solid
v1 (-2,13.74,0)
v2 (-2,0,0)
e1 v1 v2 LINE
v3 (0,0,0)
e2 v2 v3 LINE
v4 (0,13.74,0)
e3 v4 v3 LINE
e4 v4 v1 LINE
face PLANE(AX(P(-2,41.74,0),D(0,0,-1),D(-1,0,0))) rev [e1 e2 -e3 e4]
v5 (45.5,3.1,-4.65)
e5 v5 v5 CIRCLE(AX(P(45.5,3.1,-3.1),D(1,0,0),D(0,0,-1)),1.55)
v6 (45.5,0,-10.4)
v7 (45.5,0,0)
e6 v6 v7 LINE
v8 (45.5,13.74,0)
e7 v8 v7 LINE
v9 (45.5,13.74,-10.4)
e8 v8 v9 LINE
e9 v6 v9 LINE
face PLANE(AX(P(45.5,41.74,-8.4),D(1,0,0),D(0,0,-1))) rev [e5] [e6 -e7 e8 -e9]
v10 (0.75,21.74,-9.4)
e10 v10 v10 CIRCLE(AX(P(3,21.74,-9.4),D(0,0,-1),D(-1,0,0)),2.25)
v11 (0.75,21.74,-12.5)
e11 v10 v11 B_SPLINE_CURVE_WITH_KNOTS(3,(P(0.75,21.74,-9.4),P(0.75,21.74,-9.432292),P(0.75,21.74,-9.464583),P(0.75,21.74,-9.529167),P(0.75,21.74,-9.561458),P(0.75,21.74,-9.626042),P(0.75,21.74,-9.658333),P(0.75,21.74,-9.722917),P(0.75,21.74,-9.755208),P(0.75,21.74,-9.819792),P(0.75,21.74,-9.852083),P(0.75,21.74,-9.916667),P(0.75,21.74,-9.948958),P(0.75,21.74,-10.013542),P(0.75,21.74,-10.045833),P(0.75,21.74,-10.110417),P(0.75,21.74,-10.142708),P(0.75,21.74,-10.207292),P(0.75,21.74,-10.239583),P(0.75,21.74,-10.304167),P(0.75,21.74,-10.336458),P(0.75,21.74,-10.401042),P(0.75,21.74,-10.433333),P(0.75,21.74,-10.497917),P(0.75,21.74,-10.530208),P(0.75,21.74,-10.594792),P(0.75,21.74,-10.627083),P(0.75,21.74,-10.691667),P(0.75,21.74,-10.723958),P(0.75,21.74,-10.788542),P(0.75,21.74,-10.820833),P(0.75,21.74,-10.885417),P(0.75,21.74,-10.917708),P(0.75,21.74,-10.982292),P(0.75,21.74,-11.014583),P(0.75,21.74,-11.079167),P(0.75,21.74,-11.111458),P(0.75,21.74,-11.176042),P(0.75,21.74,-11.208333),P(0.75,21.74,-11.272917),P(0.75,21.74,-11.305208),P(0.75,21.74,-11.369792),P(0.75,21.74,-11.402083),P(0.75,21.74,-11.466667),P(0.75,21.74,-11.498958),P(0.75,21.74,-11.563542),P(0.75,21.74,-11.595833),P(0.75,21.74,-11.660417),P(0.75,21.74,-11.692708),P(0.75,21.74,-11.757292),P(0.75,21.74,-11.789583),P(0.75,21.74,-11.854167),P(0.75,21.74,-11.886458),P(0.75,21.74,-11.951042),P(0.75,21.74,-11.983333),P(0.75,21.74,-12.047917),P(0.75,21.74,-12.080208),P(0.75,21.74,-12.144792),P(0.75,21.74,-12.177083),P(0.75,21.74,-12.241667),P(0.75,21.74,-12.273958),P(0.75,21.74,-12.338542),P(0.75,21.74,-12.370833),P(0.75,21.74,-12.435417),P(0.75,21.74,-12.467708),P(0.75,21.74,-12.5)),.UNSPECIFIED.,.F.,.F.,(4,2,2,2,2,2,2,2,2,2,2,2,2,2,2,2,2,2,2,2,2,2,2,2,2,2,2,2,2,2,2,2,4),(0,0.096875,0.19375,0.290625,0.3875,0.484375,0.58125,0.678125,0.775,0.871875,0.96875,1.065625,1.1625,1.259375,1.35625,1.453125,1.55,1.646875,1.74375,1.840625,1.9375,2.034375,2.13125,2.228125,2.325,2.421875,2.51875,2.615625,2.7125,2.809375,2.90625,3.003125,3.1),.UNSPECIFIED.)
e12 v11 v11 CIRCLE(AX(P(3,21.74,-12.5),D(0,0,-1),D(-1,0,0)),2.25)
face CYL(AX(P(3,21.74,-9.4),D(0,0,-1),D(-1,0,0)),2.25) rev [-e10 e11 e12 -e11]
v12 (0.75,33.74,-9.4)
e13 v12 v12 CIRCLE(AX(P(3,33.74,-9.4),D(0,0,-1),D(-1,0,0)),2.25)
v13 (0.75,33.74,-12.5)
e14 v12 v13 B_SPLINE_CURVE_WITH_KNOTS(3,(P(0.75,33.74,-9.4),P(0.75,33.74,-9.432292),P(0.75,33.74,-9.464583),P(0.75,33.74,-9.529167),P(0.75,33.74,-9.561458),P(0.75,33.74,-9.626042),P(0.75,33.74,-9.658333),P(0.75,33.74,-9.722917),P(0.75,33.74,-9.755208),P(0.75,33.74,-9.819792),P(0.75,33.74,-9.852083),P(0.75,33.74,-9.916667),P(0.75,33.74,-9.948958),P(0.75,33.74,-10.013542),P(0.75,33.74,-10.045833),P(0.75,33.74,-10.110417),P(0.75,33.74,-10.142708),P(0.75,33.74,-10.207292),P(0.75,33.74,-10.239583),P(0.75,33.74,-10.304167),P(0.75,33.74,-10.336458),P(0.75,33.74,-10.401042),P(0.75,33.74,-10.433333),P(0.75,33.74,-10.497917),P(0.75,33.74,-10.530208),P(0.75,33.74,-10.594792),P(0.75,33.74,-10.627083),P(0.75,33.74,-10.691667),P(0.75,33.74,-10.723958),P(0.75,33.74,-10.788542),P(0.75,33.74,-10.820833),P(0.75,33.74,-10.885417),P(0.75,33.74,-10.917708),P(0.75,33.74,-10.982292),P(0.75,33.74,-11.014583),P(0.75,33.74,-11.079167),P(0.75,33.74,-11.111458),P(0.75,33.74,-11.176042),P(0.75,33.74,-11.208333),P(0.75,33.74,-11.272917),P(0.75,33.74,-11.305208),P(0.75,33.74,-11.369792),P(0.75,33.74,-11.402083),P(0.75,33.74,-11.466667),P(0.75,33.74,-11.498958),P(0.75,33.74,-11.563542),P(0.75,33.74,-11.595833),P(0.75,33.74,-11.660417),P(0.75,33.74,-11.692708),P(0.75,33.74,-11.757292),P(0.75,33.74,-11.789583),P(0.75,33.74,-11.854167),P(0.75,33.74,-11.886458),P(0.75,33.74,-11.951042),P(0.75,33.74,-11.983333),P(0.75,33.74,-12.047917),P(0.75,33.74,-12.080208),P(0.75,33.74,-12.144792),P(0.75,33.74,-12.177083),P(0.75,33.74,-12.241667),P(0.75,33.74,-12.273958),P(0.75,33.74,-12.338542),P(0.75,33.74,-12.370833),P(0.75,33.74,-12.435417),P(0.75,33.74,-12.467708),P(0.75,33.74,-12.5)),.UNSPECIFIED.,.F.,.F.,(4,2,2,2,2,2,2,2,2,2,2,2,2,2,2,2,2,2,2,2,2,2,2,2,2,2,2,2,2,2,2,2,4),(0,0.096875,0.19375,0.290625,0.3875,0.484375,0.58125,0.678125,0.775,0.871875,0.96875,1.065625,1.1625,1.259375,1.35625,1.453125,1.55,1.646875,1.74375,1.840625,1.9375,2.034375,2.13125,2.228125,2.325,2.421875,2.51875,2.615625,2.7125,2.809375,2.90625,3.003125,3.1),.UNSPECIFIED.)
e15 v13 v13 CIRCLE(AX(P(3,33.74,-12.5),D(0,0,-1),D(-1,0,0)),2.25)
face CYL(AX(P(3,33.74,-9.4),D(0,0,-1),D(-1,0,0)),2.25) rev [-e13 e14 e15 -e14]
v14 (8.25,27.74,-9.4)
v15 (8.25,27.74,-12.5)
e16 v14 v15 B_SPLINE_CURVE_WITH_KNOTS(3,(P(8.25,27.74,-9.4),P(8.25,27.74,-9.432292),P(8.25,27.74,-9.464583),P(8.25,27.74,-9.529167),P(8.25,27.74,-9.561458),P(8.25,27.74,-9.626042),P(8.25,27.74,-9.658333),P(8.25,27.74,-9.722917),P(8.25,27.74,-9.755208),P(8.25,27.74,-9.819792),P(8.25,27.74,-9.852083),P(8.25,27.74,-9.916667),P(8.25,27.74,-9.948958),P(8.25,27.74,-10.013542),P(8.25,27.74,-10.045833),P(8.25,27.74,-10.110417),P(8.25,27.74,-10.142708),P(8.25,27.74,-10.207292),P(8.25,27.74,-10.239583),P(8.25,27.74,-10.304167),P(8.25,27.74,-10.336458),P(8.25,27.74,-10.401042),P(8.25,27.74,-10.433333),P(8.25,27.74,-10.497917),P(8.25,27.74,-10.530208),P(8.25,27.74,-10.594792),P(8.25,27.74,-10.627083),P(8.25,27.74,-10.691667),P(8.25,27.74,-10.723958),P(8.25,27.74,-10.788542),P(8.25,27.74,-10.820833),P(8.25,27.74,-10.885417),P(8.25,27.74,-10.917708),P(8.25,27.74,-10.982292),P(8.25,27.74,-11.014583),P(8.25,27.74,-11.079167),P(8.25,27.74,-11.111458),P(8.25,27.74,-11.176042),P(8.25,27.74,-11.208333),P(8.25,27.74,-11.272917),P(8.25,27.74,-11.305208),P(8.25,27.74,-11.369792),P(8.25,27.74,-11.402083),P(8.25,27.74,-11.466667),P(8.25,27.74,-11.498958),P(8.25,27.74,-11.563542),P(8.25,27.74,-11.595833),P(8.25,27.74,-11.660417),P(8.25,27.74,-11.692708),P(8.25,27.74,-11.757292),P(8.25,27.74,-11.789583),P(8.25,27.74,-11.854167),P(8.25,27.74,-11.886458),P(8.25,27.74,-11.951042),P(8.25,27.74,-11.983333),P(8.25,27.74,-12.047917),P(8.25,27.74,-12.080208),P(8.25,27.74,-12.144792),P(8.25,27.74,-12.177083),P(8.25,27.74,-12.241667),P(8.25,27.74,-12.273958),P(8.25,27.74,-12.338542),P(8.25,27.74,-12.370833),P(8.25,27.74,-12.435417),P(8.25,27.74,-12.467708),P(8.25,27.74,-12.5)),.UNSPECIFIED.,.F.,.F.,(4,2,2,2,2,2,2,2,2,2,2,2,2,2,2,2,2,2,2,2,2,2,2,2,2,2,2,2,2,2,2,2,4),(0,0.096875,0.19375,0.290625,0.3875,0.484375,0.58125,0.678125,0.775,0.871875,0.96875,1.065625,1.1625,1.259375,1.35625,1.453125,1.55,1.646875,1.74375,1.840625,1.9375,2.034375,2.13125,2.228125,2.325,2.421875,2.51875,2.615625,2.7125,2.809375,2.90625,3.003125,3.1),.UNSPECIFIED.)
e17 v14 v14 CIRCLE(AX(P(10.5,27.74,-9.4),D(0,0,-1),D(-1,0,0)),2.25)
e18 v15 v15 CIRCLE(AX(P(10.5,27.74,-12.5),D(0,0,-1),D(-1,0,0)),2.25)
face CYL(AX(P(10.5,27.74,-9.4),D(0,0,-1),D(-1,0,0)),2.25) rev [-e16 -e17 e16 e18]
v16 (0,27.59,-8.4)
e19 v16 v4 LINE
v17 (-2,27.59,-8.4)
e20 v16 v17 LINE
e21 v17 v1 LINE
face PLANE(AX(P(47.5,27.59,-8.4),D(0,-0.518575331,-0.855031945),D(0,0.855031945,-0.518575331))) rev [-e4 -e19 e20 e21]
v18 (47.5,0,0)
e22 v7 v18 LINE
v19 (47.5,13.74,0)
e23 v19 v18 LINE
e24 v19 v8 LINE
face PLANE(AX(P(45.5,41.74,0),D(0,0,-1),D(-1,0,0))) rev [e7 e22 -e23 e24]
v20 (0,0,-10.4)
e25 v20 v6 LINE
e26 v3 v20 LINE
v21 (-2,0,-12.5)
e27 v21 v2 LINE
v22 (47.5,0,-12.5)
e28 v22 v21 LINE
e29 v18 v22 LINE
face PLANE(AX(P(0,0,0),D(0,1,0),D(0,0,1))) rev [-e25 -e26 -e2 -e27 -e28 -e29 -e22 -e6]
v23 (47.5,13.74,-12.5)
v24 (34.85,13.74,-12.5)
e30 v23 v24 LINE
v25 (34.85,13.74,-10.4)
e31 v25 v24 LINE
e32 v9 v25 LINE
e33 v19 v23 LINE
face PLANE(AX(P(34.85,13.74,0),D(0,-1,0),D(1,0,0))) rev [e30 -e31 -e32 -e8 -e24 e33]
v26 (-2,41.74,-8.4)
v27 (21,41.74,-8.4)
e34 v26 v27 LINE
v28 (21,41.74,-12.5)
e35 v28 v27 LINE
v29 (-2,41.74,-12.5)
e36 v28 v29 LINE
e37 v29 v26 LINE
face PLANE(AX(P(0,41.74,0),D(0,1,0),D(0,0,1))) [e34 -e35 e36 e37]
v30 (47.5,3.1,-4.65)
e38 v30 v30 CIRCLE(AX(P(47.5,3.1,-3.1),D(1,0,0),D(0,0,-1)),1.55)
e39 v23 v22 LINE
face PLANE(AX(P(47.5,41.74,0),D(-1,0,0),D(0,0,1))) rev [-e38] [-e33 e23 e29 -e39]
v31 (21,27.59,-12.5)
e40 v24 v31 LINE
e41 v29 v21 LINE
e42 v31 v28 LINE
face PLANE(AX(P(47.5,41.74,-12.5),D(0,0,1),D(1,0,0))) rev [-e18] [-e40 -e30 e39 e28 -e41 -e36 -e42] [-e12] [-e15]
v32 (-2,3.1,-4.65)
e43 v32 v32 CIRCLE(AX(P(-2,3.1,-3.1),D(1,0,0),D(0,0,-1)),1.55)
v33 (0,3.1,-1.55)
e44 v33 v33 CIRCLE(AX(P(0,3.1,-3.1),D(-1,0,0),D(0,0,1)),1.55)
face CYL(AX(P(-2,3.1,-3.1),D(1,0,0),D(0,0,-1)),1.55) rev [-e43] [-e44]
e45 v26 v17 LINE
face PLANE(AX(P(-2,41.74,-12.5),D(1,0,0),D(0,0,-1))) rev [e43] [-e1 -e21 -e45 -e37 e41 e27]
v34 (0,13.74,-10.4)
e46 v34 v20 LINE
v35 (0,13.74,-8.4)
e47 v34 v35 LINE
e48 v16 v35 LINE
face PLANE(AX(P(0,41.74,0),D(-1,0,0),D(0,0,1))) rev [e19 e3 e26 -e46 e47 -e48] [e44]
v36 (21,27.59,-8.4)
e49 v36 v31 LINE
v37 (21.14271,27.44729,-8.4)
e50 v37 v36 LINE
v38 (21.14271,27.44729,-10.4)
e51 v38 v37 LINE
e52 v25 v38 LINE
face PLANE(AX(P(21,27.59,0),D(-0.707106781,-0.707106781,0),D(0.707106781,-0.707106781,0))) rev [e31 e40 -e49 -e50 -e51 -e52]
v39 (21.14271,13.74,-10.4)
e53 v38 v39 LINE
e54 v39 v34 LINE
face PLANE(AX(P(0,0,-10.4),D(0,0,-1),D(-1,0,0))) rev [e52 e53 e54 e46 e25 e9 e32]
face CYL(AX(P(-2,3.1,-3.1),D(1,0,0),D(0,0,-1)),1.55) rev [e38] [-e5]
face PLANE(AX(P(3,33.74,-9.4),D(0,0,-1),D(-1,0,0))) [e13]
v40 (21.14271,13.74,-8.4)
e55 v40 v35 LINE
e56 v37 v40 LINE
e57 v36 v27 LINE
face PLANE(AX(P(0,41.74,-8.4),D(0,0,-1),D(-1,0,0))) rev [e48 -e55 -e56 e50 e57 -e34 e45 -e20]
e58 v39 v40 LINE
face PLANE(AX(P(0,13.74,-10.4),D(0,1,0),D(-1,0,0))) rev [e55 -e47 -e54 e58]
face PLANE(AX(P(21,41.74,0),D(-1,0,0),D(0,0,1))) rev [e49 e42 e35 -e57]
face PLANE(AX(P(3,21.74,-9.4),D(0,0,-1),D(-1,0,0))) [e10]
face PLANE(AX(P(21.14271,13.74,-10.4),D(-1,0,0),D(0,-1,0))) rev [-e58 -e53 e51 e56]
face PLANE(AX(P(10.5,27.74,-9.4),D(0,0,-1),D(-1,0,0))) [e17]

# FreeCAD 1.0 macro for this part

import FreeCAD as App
import Part
import Sketcher

V = App.Vector
Q = App.Units.Quantity

doc = App.newDocument("Part")
body = doc.addObject("PartDesign::Body", "Body")

sketch1 = body.newObject("Sketcher::SketchObject", "Sketch")
sketch1.AttachmentSupport = (doc.getObject("XZ_Plane"), [""])
sketch1.MapMode = "FlatFace"
sketch1.addGeometry(Part.LineSegment(V(0, 0, 0), V(0, -8.4, 0)), False)
sketch1.addGeometry(Part.LineSegment(V(0, -8.4, 0), V(45.5, -8.4, 0)), False)
sketch1.addGeometry(Part.LineSegment(V(45.5, -8.4, 0), V(45.5, 0, 0)), False)
sketch1.addGeometry(Part.LineSegment(V(45.5, 0, 0), V(47.5, 0, 0)), False)
sketch1.addGeometry(Part.LineSegment(V(47.5, 0, 0), V(47.5, -12.5, 0)), False)
sketch1.addGeometry(Part.LineSegment(V(47.5, -12.5, 0), V(-2, -12.5, 0)), False)
sketch1.addGeometry(Part.LineSegment(V(-2, -12.5, 0), V(-2, 0, 0)), False)
sketch1.addGeometry(Part.LineSegment(V(-2, 0, 0), V(0, 0, 0)), False)
sketch1.addConstraint(Sketcher.Constraint("Coincident", 0, 2, 1, 1))
sketch1.addConstraint(Sketcher.Constraint("Coincident", 1, 2, 2, 1))
sketch1.addConstraint(Sketcher.Constraint("Coincident", 2, 2, 3, 1))
sketch1.addConstraint(Sketcher.Constraint("Coincident", 3, 2, 4, 1))
sketch1.addConstraint(Sketcher.Constraint("Coincident", 4, 2, 5, 1))
sketch1.addConstraint(Sketcher.Constraint("Coincident", 5, 2, 6, 1))
sketch1.addConstraint(Sketcher.Constraint("Coincident", 6, 2, 7, 1))
sketch1.addConstraint(Sketcher.Constraint("Coincident", 7, 2, 0, 1))
sketch1.addConstraint(Sketcher.Constraint("Vertical", 0))
sketch1.addConstraint(Sketcher.Constraint("Horizontal", 1))
sketch1.addConstraint(Sketcher.Constraint("Vertical", 2))
sketch1.addConstraint(Sketcher.Constraint("Horizontal", 3))
sketch1.addConstraint(Sketcher.Constraint("Vertical", 4))
sketch1.addConstraint(Sketcher.Constraint("Horizontal", 5))
sketch1.addConstraint(Sketcher.Constraint("Vertical", 6))
sketch1.addConstraint(Sketcher.Constraint("Horizontal", 7))
sketch1.addConstraint(Sketcher.Constraint("Coincident", 7, 2, -1, 1))
sketch1.addConstraint(Sketcher.Constraint("PointOnObject", 2, 2, -1))
sketch1.addConstraint(Sketcher.Constraint("Equal", 3, 7))
sketch1.addConstraint(Sketcher.Constraint("DistanceX", 3, 1, 3, 2, 2.0))
sketch1.addConstraint(Sketcher.Constraint("DistanceX", 1, 1, 1, 2, 45.5))
sketch1.addConstraint(Sketcher.Constraint("DistanceY", 0, 2, 0, 1, 8.4))
sketch1.addConstraint(Sketcher.Constraint("DistanceY", 4, 2, 4, 1, 12.5))
pad1 = body.newObject("PartDesign::Pad", "Pad")
pad1.Profile = sketch1
pad1.Length = 41.74
pad1.Reversed = True

sketch2 = body.newObject("Sketcher::SketchObject", "Sketch001")
sketch2.AttachmentSupport = (doc.getObject("YZ_Plane"), [""])
sketch2.MapMode = "FlatFace"
sketch2.AttachmentOffset = App.Placement(V(0, 0, 47.5), App.Rotation())
sketch2.addGeometry(Part.Circle(V(3.1, -3.1, 0), V(0, 0, 1), 1.6), False)
sketch2.addConstraint(Sketcher.Constraint("Diameter", 0, 3.1))
sketch2.addConstraint(Sketcher.Constraint("DistanceX", -1, 1, 0, 3, 3.1))
sketch2.addConstraint(Sketcher.Constraint("DistanceY", 0, 3, -1, 1, 3.1))
pocket1 = body.newObject("PartDesign::Pocket", "Pocket")
pocket1.Profile = sketch2
pocket1.Type = "ThroughAll"

sketch3 = body.newObject("Sketcher::SketchObject", "Sketch002")
sketch3.AttachmentSupport = (doc.getObject("YZ_Plane"), [""])
sketch3.MapMode = "FlatFace"
sketch3.AttachmentOffset = App.Placement(V(0, 0, -2), App.Rotation())
sketch3.addGeometry(Part.LineSegment(V(42, 0, 0), V(42, -8, 0)), False)
sketch3.addGeometry(Part.LineSegment(V(42, -8, 0), V(28, -8, 0)), False)
sketch3.addGeometry(Part.LineSegment(V(28, -8, 0), V(14, 0, 0)), False)
sketch3.addGeometry(Part.LineSegment(V(14, 0, 0), V(42, 0, 0)), False)
sketch3.addConstraint(Sketcher.Constraint("Coincident", 0, 2, 1, 1))
sketch3.addConstraint(Sketcher.Constraint("Coincident", 1, 2, 2, 1))
sketch3.addConstraint(Sketcher.Constraint("Coincident", 2, 2, 3, 1))
sketch3.addConstraint(Sketcher.Constraint("Coincident", 3, 2, 0, 1))
sketch3.addConstraint(Sketcher.Constraint("Vertical", 0))
sketch3.addConstraint(Sketcher.Constraint("Horizontal", 1))
sketch3.addConstraint(Sketcher.Constraint("Horizontal", 3))
sketch3.addConstraint(Sketcher.Constraint("PointOnObject", 2, 2, -1))
sketch3.addConstraint(Sketcher.Constraint("DistanceX", 3, 1, 3, 2, 28.0))
sketch3.addConstraint(Sketcher.Constraint("DistanceY", 0, 2, 0, 1, 8.4))
sketch3.addConstraint(Sketcher.Constraint("DistanceX", 1, 2, 1, 1, 14.15))
sketch3.addConstraint(Sketcher.Constraint("DistanceX", -1, 1, 0, 2, 41.74))
pocket2 = body.newObject("PartDesign::Pocket", "Pocket001")
pocket2.Profile = sketch3
pocket2.Type = "ThroughAll"
pocket2.Reversed = True

sketch4 = body.newObject("Sketcher::SketchObject", "Sketch003")
sketch4.AttachmentSupport = (doc.getObject("XY_Plane"), [""])
sketch4.MapMode = "FlatFace"
sketch4.AttachmentOffset = App.Placement(V(0, 0, -12.5), App.Rotation())
sketch4.addGeometry(Part.LineSegment(V(21, 28, 0), V(21, 42, 0)), False)
sketch4.addGeometry(Part.LineSegment(V(21, 42, 0), V(48, 42, 0)), False)
sketch4.addGeometry(Part.LineSegment(V(48, 42, 0), V(48, 14, 0)), False)
sketch4.addGeometry(Part.LineSegment(V(48, 14, 0), V(35, 14, 0)), False)
sketch4.addGeometry(Part.LineSegment(V(35, 14, 0), V(21, 28, 0)), False)
sketch4.addConstraint(Sketcher.Constraint("Coincident", 0, 2, 1, 1))
sketch4.addConstraint(Sketcher.Constraint("Coincident", 1, 2, 2, 1))
sketch4.addConstraint(Sketcher.Constraint("Coincident", 2, 2, 3, 1))
sketch4.addConstraint(Sketcher.Constraint("Coincident", 3, 2, 4, 1))
sketch4.addConstraint(Sketcher.Constraint("Coincident", 4, 2, 0, 1))
sketch4.addConstraint(Sketcher.Constraint("Vertical", 0))
sketch4.addConstraint(Sketcher.Constraint("Horizontal", 1))
sketch4.addConstraint(Sketcher.Constraint("Vertical", 2))
sketch4.addConstraint(Sketcher.Constraint("Horizontal", 3))
sketch4.addConstraint(Sketcher.Constraint("DistanceY", 2, 2, 2, 1, 28.0))
sketch4.addConstraint(Sketcher.Constraint("Angle", 4, Q("135 deg")))
sketch4.addConstraint(Sketcher.Constraint("DistanceX", 1, 1, 1, 2, 26.5))
sketch4.addConstraint(Sketcher.Constraint("DistanceX", -1, 1, 0, 2, 21.0))
sketch4.addConstraint(Sketcher.Constraint("DistanceX", 3, 2, 3, 1, 12.65))
sketch4.addConstraint(Sketcher.Constraint("DistanceY", -1, 1, 0, 2, 41.74))
pocket3 = body.newObject("PartDesign::Pocket", "Pocket002")
pocket3.Profile = sketch4
pocket3.Type = "ThroughAll"
pocket3.Reversed = True

sketch5 = body.newObject("Sketcher::SketchObject", "Sketch004")
sketch5.AttachmentSupport = (doc.getObject("XY_Plane"), [""])
sketch5.MapMode = "FlatFace"
sketch5.AttachmentOffset = App.Placement(V(0, 0, -12.5), App.Rotation())
sketch5.addGeometry(Part.Circle(V(3, 21.7, 0), V(0, 0, 1), 2.2), False)
sketch5.addGeometry(Part.Circle(V(10.5, 27.7, 0), V(0, 0, 1), 2.2), False)
sketch5.addGeometry(Part.Circle(V(3, 33.7, 0), V(0, 0, 1), 2.2), False)
sketch5.addConstraint(Sketcher.Constraint("Equal", 0, 1))
sketch5.addConstraint(Sketcher.Constraint("Equal", 1, 2))
sketch5.addConstraint(Sketcher.Constraint("Vertical", 0, 3, 2, 3))
sketch5.addConstraint(Sketcher.Constraint("Diameter", 0, 4.5))
sketch5.addConstraint(Sketcher.Constraint("DistanceX", -1, 1, 0, 3, 3.0))
sketch5.addConstraint(Sketcher.Constraint("DistanceY", 0, 3, 1, 3, 6.0))
sketch5.addConstraint(Sketcher.Constraint("DistanceY", 1, 3, 2, 3, 6.0))
sketch5.addConstraint(Sketcher.Constraint("DistanceX", -1, 1, 1, 3, 10.5))
sketch5.addConstraint(Sketcher.Constraint("DistanceY", -1, 1, 0, 3, 21.74))
pocket4 = body.newObject("PartDesign::Pocket", "Pocket003")
pocket4.Profile = sketch5
pocket4.Length = 3.1
pocket4.Reversed = True

sketch6 = body.newObject("Sketcher::SketchObject", "Sketch005")
sketch6.AttachmentSupport = (doc.getObject("XY_Plane"), [""])
sketch6.MapMode = "FlatFace"
sketch6.AttachmentOffset = App.Placement(V(0, 0, -8.4), App.Rotation())
sketch6.addGeometry(Part.LineSegment(V(35, 14, 0), V(21, 27, 0)), False)
sketch6.addGeometry(Part.LineSegment(V(21, 27, 0), V(21, 14, 0)), False)
sketch6.addGeometry(Part.LineSegment(V(21, 14, 0), V(0, 14, 0)), False)
sketch6.addGeometry(Part.LineSegment(V(0, 14, 0), V(0, 0, 0)), False)
sketch6.addGeometry(Part.LineSegment(V(0, 0, 0), V(46, 0, 0)), False)
sketch6.addGeometry(Part.LineSegment(V(46, 0, 0), V(46, 14, 0)), False)
sketch6.addGeometry(Part.LineSegment(V(46, 14, 0), V(35, 14, 0)), False)
sketch6.addConstraint(Sketcher.Constraint("Coincident", 0, 2, 1, 1))
sketch6.addConstraint(Sketcher.Constraint("Coincident", 1, 2, 2, 1))
sketch6.addConstraint(Sketcher.Constraint("Coincident", 2, 2, 3, 1))
sketch6.addConstraint(Sketcher.Constraint("Coincident", 3, 2, 4, 1))
sketch6.addConstraint(Sketcher.Constraint("Coincident", 4, 2, 5, 1))
sketch6.addConstraint(Sketcher.Constraint("Coincident", 5, 2, 6, 1))
sketch6.addConstraint(Sketcher.Constraint("Coincident", 6, 2, 0, 1))
sketch6.addConstraint(Sketcher.Constraint("Vertical", 1))
sketch6.addConstraint(Sketcher.Constraint("Horizontal", 2))
sketch6.addConstraint(Sketcher.Constraint("Vertical", 3))
sketch6.addConstraint(Sketcher.Constraint("Horizontal", 4))
sketch6.addConstraint(Sketcher.Constraint("Vertical", 5))
sketch6.addConstraint(Sketcher.Constraint("Horizontal", 6))
sketch6.addConstraint(Sketcher.Constraint("Coincident", 3, 2, -1, 1))
sketch6.addConstraint(Sketcher.Constraint("Horizontal", 2, 2, 5, 2))
sketch6.addConstraint(Sketcher.Constraint("Angle", 0, Q("135 deg")))
sketch6.addConstraint(Sketcher.Constraint("DistanceX", 4, 1, 4, 2, 45.5))
sketch6.addConstraint(Sketcher.Constraint("DistanceX", 6, 2, 6, 1, 10.65))
sketch6.addConstraint(Sketcher.Constraint("DistanceY", 3, 2, 3, 1, 13.74))
sketch6.addConstraint(Sketcher.Constraint("DistanceX", 2, 2, 2, 1, 21.14271))
pocket5 = body.newObject("PartDesign::Pocket", "Pocket004")
pocket5.Profile = sketch6
pocket5.Length = 2

doc.recompute()
